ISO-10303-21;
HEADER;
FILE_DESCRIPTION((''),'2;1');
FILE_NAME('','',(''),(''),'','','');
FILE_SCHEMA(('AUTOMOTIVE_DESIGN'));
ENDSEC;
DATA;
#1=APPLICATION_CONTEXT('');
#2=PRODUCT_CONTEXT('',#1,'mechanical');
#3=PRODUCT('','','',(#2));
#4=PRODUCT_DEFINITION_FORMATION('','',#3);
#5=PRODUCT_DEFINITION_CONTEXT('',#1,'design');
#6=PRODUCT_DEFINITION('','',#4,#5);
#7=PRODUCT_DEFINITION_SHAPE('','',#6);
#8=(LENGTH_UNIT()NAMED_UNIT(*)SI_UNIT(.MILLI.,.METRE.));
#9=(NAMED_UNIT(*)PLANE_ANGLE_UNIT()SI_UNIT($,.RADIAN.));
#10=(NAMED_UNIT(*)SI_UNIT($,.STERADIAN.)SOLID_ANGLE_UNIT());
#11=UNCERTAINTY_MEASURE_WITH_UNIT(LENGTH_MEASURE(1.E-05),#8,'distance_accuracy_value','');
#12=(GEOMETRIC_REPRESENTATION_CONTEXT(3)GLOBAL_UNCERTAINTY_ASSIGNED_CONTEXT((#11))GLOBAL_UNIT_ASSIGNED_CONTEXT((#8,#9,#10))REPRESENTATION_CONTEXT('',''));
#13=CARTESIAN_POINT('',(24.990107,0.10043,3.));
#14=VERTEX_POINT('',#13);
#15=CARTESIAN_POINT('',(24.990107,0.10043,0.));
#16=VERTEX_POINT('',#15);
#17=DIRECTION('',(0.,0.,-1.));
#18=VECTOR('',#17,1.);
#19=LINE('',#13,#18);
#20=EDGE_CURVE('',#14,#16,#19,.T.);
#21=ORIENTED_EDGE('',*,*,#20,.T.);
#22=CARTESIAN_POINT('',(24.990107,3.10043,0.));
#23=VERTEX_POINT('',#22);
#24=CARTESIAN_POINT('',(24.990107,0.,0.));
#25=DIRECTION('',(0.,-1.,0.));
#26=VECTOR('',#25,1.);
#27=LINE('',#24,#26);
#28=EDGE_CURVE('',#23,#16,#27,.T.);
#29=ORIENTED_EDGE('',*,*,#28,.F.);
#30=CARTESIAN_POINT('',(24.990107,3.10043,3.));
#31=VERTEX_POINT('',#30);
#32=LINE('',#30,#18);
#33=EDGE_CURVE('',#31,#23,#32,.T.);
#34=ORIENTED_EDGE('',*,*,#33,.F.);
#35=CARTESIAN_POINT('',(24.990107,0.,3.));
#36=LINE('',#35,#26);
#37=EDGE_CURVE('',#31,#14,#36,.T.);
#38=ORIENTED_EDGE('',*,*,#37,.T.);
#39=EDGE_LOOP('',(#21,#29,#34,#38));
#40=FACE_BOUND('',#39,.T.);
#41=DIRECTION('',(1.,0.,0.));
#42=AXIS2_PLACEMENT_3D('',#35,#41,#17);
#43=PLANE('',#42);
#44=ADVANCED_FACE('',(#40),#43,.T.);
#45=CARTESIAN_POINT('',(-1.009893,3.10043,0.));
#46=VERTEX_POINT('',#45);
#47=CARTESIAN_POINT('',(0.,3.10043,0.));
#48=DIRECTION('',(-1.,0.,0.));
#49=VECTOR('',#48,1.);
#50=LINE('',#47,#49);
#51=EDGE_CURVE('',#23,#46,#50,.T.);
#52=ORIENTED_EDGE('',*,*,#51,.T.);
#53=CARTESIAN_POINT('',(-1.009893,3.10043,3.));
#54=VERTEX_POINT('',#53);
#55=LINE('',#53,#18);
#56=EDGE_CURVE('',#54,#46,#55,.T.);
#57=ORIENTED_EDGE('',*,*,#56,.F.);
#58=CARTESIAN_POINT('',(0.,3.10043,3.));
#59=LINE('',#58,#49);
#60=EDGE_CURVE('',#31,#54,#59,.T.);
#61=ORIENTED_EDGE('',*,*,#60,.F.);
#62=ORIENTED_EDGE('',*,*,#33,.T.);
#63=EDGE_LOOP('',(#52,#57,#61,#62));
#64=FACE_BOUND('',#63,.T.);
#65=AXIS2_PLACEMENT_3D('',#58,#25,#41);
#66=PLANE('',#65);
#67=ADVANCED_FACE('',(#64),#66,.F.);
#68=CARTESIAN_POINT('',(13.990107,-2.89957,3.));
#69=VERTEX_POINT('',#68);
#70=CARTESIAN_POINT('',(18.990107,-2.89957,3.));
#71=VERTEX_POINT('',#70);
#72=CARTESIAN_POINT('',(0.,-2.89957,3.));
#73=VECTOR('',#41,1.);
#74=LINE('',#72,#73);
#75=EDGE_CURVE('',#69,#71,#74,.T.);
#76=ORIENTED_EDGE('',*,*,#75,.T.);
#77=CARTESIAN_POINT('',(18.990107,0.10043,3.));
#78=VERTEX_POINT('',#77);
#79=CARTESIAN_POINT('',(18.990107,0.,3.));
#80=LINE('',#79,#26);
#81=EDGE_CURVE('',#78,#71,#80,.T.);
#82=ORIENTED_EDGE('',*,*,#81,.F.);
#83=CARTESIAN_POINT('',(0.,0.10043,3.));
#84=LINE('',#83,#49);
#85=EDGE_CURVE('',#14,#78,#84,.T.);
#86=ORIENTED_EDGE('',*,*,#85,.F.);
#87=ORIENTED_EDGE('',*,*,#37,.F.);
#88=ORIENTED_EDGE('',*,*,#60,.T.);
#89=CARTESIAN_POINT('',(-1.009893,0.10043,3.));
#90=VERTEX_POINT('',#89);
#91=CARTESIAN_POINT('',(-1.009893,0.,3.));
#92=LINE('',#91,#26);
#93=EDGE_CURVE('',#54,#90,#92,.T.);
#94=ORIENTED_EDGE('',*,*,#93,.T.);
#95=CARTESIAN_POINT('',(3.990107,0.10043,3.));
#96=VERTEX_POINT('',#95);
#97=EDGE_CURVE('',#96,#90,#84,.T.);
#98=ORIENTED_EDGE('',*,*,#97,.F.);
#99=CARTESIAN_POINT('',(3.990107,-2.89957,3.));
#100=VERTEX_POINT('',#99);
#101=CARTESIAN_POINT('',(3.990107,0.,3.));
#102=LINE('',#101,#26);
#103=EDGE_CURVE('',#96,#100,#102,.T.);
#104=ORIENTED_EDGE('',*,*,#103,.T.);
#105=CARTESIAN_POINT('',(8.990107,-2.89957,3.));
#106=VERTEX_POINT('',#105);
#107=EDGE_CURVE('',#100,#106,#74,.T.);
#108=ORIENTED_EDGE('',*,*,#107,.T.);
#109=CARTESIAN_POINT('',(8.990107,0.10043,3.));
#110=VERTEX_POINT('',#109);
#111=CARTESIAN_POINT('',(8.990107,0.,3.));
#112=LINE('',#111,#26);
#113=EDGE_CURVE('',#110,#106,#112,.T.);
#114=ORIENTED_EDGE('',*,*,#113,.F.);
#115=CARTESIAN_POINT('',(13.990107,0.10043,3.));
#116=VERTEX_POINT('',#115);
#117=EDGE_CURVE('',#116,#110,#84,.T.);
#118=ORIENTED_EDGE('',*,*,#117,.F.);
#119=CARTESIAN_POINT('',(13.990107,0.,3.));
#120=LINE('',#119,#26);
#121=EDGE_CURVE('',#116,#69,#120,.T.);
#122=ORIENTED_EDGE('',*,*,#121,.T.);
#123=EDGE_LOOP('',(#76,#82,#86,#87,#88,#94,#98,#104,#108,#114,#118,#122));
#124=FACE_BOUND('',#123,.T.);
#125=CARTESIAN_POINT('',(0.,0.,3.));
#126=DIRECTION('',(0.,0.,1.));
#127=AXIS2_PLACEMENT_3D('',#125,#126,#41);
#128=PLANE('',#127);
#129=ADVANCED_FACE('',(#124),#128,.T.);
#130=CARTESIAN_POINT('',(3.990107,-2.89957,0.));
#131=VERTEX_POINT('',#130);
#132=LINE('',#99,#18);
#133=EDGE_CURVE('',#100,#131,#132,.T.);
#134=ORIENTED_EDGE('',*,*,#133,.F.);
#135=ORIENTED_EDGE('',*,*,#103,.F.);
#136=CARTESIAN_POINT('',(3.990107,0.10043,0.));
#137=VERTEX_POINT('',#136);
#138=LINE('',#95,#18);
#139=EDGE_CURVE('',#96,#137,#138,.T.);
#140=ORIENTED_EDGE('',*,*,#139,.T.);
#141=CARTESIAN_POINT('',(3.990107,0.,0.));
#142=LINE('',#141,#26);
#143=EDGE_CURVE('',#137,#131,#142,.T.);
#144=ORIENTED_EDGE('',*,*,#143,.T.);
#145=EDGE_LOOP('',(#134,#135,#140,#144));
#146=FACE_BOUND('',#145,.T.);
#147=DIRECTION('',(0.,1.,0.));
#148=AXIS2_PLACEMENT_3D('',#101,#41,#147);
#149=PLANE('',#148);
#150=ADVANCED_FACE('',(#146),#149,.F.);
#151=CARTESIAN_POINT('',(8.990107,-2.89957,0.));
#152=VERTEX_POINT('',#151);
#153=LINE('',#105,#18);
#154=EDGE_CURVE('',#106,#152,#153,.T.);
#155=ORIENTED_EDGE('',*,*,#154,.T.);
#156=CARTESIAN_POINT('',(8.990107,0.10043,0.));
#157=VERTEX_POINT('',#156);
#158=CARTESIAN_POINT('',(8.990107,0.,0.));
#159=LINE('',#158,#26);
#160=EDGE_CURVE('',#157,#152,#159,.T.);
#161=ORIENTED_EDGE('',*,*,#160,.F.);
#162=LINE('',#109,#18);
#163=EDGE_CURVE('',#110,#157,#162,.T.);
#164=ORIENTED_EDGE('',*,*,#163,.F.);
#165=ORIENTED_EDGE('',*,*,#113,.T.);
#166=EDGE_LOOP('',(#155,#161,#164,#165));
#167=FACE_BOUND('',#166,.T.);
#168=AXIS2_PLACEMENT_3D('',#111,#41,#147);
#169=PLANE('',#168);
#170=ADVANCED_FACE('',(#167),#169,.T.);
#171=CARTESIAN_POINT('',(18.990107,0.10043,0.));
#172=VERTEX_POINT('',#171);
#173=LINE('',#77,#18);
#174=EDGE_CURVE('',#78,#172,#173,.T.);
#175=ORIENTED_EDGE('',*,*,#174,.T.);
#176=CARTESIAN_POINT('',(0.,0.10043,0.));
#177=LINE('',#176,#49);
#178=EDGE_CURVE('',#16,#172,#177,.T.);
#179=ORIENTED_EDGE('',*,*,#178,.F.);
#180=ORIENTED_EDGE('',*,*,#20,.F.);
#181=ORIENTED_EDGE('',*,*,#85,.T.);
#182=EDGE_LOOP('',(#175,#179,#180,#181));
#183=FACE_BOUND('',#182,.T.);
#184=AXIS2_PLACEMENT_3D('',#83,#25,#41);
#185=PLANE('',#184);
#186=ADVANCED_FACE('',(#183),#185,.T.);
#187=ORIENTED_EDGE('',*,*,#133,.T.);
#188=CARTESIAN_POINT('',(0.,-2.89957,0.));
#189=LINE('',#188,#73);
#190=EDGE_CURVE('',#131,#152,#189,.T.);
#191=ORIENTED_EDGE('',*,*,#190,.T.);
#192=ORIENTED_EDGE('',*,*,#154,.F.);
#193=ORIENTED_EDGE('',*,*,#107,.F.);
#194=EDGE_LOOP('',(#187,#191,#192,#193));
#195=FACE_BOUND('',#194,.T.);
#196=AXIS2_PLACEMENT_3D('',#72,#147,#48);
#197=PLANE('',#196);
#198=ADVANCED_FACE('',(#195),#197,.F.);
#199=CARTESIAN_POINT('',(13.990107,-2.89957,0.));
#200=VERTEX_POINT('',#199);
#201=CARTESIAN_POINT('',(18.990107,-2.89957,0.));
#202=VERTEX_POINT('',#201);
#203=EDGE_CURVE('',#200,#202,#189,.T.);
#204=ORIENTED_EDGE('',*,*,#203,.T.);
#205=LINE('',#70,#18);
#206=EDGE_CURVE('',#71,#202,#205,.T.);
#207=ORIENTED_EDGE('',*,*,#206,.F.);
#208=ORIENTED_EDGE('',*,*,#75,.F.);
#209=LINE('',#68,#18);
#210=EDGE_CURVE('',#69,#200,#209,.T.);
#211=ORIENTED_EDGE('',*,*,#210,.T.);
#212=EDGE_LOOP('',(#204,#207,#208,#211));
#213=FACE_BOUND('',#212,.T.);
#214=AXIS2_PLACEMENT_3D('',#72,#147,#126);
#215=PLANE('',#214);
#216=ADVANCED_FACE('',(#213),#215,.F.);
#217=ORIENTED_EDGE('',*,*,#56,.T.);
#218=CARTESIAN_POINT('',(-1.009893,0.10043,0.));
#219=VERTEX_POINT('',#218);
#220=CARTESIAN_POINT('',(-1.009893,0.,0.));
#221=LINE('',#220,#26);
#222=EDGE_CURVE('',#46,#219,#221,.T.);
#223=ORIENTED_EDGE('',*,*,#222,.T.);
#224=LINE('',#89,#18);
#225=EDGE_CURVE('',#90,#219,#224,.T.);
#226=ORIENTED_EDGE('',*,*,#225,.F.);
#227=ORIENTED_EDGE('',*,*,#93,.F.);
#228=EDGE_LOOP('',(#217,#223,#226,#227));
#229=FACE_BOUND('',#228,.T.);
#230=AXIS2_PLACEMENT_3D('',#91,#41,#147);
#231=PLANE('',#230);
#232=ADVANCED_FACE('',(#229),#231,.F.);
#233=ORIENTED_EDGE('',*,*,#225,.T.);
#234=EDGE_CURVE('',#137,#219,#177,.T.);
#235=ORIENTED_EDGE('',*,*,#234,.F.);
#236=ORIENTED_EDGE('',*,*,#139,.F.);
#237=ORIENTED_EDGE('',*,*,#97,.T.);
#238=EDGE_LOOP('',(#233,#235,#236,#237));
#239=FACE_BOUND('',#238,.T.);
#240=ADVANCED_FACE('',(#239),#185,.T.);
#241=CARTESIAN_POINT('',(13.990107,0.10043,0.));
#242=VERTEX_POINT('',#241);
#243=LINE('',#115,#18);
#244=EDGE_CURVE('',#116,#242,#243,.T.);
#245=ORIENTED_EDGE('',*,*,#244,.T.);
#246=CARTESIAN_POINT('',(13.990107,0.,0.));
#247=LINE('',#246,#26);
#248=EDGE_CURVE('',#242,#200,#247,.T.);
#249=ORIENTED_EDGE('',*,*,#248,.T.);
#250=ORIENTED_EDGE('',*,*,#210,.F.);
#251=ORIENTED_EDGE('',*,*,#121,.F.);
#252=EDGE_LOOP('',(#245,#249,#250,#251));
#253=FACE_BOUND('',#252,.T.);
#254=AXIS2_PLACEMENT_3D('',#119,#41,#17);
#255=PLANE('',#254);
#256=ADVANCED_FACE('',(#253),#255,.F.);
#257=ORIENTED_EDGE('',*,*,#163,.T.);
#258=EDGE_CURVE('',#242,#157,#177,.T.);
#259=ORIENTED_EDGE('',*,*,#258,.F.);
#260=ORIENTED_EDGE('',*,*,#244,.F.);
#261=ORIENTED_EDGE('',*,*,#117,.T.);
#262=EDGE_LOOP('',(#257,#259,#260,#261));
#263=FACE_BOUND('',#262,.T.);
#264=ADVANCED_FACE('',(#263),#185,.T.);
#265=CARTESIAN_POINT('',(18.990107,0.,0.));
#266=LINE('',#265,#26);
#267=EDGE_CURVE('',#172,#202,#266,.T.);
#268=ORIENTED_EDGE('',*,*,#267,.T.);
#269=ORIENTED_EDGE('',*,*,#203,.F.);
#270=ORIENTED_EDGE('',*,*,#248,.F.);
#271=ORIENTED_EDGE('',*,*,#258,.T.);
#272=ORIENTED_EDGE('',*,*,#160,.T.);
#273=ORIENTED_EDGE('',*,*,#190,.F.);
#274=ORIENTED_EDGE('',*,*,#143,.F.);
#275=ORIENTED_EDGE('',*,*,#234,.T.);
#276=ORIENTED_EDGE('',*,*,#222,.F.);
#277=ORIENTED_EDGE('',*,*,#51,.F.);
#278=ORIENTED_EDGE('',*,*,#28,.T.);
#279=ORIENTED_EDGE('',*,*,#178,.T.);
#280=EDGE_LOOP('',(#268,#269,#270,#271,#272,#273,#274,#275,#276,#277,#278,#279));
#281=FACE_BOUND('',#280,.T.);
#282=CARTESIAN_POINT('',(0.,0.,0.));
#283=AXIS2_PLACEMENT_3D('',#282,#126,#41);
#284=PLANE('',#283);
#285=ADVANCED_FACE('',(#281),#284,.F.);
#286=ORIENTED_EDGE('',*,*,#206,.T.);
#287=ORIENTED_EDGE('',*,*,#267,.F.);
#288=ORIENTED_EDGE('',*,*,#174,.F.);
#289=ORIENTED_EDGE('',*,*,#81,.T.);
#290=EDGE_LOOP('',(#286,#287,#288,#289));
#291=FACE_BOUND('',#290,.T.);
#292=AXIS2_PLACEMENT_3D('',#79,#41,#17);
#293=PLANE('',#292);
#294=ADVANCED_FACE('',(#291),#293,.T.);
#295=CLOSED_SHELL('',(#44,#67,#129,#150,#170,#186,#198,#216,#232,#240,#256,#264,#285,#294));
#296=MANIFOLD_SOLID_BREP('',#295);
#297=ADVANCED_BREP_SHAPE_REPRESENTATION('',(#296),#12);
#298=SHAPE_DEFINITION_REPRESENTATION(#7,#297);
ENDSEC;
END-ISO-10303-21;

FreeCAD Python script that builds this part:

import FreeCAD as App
import Part
import Sketcher

V = App.Vector

doc = App.newDocument("Part")
params = doc.addObject("Spreadsheet::Sheet", "Params")
for row, (alias, value) in enumerate([
    ("sketch1_width", "5 mm"),
    ("sketch1_width2", "6 mm"),
    ("sketch1_height", "3 mm"),
    ("pad1_length", "3 mm"),
], start=1):
    params.set(f"A{row}", alias)
    params.set(f"B{row}", "=" + value)
    params.setAlias(f"B{row}", alias)

body = doc.addObject("PartDesign::Body", "Body")

sketch1 = doc.addObject("Sketcher::SketchObject", "Sketch")
body.addObject(sketch1)
sketch1.AttachmentSupport = (doc.XY_Plane, [""])
sketch1.MapMode = "FlatFace"
sketch1.addGeometry([
    Part.LineSegment(V(4, 0.1, 0), V(4, -2.9, 0)),
    Part.LineSegment(V(4, -2.9, 0), V(9, -2.9, 0)),
    Part.LineSegment(V(9, -2.9, 0), V(9, 0.1, 0)),
    Part.LineSegment(V(9, 0.1, 0), V(14, 0.1, 0)),
    Part.LineSegment(V(14, 0.1, 0), V(14, -2.9, 0)),
    Part.LineSegment(V(14, -2.9, 0), V(19, -2.9, 0)),
    Part.LineSegment(V(19, -2.9, 0), V(19, 0.1, 0)),
    Part.LineSegment(V(19, 0.1, 0), V(25, 0.1, 0)),
    Part.LineSegment(V(25, 0.1, 0), V(25, 3.1, 0)),
    Part.LineSegment(V(25, 3.1, 0), V(-1, 3.1, 0)),
    Part.LineSegment(V(-1, 3.1, 0), V(-1, 0.1, 0)),
    Part.LineSegment(V(-1, 0.1, 0), V(4, 0.1, 0)),
], False)
sketch1.addConstraint([
    Sketcher.Constraint("Coincident", 0, 2, 1, 1),
    Sketcher.Constraint("Coincident", 1, 2, 2, 1),
    Sketcher.Constraint("Coincident", 2, 2, 3, 1),
    Sketcher.Constraint("Coincident", 3, 2, 4, 1),
    Sketcher.Constraint("Coincident", 4, 2, 5, 1),
    Sketcher.Constraint("Coincident", 5, 2, 6, 1),
    Sketcher.Constraint("Coincident", 6, 2, 7, 1),
    Sketcher.Constraint("Coincident", 7, 2, 8, 1),
    Sketcher.Constraint("Coincident", 8, 2, 9, 1),
    Sketcher.Constraint("Coincident", 9, 2, 10, 1),
    Sketcher.Constraint("Coincident", 10, 2, 11, 1),
    Sketcher.Constraint("Coincident", 11, 2, 0, 1),
    Sketcher.Constraint("Vertical", 0),
    Sketcher.Constraint("Horizontal", 1),
    Sketcher.Constraint("Vertical", 2),
    Sketcher.Constraint("Horizontal", 3),
    Sketcher.Constraint("Vertical", 4),
    Sketcher.Constraint("Horizontal", 5),
    Sketcher.Constraint("Vertical", 6),
    Sketcher.Constraint("Horizontal", 7),
    Sketcher.Constraint("Vertical", 8),
    Sketcher.Constraint("Horizontal", 9),
    Sketcher.Constraint("Vertical", 10),
    Sketcher.Constraint("Horizontal", 11),
    Sketcher.Constraint("Horizontal", 1, 2, 4, 2),
    Sketcher.Constraint("Horizontal", 3, 2, 6, 2),
    Sketcher.Constraint("Horizontal", 7, 2, 10, 2),
    Sketcher.Constraint("Equal", 1, 3),
    Sketcher.Constraint("Equal", 3, 5),
    Sketcher.Constraint("Equal", 5, 11),
    Sketcher.Constraint("Equal", 6, 8),
    Sketcher.Constraint("DistanceX", 1, 1, 1, 2, 5.0),
    Sketcher.Constraint("DistanceX", 7, 1, 7, 2, 6.0),
    Sketcher.Constraint("DistanceY", 0, 2, 0, 1, 3.0),
    Sketcher.Constraint("DistanceY", 0, 2, -1, 1, 2.89957),
    Sketcher.Constraint("DistanceX", -1, 1, 0, 2, 3.990107),
])
sketch1.setExpression("Constraints[31]", "Params.sketch1_width")
sketch1.setExpression("Constraints[32]", "Params.sketch1_width2")
sketch1.setExpression("Constraints[33]", "Params.sketch1_height")
pad1 = doc.addObject("PartDesign::Pad", "Pad")
body.addObject(pad1)
pad1.Profile = sketch1
pad1.setExpression("Length", "Params.pad1_length")

doc.recompute()
